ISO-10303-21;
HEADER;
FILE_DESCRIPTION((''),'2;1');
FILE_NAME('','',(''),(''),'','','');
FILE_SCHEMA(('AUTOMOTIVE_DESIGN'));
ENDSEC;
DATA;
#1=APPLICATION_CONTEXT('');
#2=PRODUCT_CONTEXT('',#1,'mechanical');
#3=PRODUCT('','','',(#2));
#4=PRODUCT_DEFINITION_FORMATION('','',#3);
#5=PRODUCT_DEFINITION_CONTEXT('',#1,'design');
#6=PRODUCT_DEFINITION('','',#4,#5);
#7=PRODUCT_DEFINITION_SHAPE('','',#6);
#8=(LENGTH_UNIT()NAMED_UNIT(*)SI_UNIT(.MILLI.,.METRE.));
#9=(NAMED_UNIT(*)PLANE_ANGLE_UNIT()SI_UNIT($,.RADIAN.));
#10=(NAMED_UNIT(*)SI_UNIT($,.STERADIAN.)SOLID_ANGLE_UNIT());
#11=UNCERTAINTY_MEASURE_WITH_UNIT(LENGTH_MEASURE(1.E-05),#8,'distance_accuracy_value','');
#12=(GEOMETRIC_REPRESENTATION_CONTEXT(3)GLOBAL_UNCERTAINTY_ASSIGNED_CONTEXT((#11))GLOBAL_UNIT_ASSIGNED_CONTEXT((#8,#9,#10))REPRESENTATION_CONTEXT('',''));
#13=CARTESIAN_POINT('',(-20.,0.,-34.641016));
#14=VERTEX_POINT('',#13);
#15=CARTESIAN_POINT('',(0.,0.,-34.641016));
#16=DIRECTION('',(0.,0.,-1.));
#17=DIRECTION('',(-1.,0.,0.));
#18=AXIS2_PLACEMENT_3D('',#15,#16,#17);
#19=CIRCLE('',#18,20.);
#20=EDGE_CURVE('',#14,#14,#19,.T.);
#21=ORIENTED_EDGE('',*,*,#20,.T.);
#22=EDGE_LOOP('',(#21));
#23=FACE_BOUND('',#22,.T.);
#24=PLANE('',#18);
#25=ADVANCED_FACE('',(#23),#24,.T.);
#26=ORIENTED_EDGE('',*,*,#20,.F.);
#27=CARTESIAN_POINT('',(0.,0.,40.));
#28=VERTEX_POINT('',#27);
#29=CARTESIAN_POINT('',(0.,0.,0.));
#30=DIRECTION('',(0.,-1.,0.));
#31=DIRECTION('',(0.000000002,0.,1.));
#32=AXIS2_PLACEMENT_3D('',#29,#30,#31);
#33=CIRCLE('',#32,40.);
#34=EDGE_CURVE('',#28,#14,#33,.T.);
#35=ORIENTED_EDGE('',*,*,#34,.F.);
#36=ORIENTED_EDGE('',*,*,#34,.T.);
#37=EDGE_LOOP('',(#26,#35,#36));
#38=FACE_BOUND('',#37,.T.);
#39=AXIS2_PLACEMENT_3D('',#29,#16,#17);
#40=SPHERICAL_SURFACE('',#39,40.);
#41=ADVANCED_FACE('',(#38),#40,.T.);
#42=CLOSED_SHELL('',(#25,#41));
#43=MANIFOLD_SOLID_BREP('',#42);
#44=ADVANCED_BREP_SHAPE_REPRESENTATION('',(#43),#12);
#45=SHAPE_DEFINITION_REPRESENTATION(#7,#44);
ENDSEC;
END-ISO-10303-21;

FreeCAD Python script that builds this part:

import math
import FreeCAD as App
import Part
import Sketcher

V = App.Vector
Q = App.Units.Quantity

doc = App.newDocument("Part")
body = doc.addObject("PartDesign::Body", "Body")

# Sketch on XZ plane
sketch1 = body.newObject("Sketcher::SketchObject", "Sketch")
sketch1.AttachmentSupport = (doc.getObject("XZ_Plane"), [""])
sketch1.MapMode = "FlatFace"
sketch1.addGeometry(Part.ArcOfCircle(Part.Circle(V(0, 0, 0), V(0, 0, 1), 40), math.radians(90), math.radians(240)), False)
sketch1.addGeometry(Part.LineSegment(V(-20, -35, 0), V(0, -35, 0)), False)
sketch1.addGeometry(Part.LineSegment(V(0, -35, 0), V(0, 40, 0)), False)
sketch1.addConstraint(Sketcher.Constraint("Coincident", 0, 2, 1, 1))
sketch1.addConstraint(Sketcher.Constraint("Coincident", 1, 2, 2, 1))
sketch1.addConstraint(Sketcher.Constraint("Coincident", 2, 2, 0, 1))
sketch1.addConstraint(Sketcher.Constraint("Horizontal", 1))
sketch1.addConstraint(Sketcher.Constraint("Vertical", 2))
sketch1.addConstraint(Sketcher.Constraint("Coincident", 0, 3, -1, 1))
sketch1.addConstraint(Sketcher.Constraint("PointOnObject", 1, 2, -2))
sketch1.addConstraint(Sketcher.Constraint("Radius", 0, Q("40 mm")))
sketch1.addConstraint(Sketcher.Constraint("DistanceX", 1, 1, 1, 2, Q("20 mm")))
revolution = body.newObject("PartDesign::Revolution", "Revolution")
revolution.Profile = sketch1
revolution.ReferenceAxis = (sketch1, ["V_Axis"])
revolution.Angle = 360

doc.recompute()
